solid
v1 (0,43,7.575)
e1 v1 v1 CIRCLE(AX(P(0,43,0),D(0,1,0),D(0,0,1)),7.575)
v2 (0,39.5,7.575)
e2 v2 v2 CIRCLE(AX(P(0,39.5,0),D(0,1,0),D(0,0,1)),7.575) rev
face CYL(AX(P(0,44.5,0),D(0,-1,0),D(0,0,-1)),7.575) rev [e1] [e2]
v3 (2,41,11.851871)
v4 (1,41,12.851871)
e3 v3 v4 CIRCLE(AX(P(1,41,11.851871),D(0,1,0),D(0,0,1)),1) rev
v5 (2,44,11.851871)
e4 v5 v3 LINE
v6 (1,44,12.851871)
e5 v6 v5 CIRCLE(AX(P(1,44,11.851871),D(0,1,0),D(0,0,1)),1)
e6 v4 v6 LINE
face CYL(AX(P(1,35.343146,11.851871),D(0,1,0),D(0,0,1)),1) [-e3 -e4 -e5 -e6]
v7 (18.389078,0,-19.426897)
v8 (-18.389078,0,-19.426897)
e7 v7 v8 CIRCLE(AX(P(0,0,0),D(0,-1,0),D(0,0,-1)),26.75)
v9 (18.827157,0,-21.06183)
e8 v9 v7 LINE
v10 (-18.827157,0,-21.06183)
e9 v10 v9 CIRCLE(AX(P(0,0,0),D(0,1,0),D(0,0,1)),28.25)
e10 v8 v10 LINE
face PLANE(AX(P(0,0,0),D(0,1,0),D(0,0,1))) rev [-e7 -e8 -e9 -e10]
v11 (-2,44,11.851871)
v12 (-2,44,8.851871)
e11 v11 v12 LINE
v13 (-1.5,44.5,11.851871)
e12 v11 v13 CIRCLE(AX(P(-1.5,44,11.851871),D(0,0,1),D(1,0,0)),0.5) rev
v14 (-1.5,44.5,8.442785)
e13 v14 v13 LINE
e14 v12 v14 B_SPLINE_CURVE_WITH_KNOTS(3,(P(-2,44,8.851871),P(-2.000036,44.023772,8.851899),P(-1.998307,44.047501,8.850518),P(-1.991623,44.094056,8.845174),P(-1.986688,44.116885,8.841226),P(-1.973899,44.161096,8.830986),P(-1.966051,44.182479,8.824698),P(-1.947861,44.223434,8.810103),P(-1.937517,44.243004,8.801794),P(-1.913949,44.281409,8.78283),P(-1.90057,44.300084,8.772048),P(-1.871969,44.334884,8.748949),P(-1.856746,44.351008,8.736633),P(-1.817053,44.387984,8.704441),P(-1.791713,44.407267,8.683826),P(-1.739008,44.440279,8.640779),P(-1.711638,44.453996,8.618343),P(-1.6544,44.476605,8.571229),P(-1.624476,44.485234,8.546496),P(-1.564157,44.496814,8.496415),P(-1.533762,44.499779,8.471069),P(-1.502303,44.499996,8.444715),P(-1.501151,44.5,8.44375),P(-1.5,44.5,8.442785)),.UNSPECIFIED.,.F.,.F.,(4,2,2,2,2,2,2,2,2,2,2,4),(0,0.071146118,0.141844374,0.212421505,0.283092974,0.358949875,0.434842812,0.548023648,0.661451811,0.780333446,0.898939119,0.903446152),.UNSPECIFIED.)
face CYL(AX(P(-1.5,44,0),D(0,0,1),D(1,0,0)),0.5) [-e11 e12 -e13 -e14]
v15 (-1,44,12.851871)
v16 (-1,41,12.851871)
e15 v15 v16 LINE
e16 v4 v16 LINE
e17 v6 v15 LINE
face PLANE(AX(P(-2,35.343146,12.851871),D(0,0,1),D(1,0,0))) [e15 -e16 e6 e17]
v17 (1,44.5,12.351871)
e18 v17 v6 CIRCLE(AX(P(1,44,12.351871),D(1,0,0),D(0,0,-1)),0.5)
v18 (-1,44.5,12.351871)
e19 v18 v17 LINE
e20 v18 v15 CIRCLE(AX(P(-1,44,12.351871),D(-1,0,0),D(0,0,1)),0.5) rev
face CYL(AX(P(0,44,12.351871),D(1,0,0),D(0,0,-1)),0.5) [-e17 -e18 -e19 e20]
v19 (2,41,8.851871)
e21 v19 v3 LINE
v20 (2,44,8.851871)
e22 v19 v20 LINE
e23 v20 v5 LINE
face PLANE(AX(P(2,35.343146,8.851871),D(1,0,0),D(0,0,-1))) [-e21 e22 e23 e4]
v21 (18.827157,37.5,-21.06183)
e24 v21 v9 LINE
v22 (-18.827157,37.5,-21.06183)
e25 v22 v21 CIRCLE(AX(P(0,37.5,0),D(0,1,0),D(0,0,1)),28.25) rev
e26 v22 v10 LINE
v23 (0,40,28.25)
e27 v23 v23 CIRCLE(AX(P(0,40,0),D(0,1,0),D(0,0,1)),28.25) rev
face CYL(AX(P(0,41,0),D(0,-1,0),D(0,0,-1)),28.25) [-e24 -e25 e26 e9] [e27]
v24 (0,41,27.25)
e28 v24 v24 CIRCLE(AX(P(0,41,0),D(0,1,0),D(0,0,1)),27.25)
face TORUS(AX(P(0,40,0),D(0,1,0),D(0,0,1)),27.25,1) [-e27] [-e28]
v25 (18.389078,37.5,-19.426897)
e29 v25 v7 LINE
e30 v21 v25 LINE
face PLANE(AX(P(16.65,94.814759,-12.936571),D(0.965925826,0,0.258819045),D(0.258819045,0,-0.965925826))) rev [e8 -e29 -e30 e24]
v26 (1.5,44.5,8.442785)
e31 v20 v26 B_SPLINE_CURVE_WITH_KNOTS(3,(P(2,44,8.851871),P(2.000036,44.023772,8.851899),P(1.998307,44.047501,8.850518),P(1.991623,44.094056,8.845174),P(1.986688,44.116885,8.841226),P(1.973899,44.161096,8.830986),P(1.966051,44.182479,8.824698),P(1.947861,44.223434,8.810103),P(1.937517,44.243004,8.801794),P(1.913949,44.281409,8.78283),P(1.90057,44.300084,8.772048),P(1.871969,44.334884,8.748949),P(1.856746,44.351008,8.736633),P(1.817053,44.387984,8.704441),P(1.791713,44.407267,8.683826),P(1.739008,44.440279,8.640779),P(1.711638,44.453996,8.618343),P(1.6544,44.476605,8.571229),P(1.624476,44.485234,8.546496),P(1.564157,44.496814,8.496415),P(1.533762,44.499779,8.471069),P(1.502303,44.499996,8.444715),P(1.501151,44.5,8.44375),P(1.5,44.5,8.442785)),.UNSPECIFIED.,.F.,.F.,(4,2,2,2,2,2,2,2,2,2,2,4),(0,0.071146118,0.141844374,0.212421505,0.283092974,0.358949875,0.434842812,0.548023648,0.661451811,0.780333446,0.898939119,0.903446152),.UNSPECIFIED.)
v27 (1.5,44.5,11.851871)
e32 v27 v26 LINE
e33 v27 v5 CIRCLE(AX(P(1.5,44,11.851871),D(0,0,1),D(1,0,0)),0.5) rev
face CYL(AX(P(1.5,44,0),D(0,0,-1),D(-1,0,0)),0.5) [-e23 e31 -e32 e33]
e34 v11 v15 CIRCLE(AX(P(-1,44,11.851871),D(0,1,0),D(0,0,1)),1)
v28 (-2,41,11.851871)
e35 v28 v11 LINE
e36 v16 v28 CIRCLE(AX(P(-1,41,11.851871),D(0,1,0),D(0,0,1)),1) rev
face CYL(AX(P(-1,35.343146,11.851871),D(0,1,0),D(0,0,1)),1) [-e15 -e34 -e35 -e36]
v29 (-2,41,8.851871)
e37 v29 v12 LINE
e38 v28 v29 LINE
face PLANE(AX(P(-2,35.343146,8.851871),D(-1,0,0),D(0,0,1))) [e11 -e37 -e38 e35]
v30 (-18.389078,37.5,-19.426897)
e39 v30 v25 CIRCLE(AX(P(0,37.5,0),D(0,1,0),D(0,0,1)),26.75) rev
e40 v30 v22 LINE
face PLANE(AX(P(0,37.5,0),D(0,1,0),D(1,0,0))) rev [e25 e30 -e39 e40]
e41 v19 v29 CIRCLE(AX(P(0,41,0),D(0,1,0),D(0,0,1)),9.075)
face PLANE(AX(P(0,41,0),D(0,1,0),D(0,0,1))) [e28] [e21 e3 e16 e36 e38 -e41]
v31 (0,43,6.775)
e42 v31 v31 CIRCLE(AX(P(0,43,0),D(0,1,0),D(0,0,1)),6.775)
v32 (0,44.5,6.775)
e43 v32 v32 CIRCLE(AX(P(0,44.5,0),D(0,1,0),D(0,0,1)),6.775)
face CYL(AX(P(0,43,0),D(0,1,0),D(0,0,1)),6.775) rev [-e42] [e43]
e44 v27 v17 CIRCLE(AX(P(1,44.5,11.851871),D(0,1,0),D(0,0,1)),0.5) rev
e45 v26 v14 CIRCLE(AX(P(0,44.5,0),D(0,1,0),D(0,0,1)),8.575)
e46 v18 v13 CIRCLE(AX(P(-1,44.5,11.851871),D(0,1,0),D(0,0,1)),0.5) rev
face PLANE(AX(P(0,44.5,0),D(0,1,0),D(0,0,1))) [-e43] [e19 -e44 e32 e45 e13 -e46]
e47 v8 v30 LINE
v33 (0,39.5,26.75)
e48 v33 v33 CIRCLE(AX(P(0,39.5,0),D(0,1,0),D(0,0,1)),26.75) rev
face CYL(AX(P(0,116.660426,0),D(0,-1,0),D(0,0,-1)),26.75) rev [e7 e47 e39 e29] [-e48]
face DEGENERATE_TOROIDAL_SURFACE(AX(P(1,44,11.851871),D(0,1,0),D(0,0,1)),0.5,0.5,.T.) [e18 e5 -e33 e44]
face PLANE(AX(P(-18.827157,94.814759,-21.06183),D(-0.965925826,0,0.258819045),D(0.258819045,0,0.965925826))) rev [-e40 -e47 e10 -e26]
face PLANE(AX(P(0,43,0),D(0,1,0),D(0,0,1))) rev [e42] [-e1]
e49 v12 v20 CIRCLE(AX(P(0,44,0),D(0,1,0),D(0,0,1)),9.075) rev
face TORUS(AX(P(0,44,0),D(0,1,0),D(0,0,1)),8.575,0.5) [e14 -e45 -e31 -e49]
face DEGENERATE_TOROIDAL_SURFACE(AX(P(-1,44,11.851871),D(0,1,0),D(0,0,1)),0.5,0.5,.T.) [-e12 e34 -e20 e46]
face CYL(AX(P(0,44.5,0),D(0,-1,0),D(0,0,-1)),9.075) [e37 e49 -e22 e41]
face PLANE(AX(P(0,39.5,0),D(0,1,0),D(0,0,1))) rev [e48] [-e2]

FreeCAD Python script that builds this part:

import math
import FreeCAD as App
import Part
import Sketcher
Q = App.Units.Quantity


def edges_at(feature, points):
    """Names of the edges that pass closest to the given points."""
    edges = feature.Shape.Edges
    near = lambda p: min(range(len(edges)), key=lambda i: edges[i].distToShape(Part.Vertex(*p))[0])
    return sorted({f"Edge{near(p) + 1}" for p in points})


def add_polygon(sketch, points):
    """Adds a closed chain of lines whose ends are joined by coincident constraints."""
    first, n = sketch.GeometryCount, len(points)
    for a, b in zip(points, points[1:] + points[:1]):
        sketch.addGeometry(Part.LineSegment(App.Vector(*a, 0), App.Vector(*b, 0)), False)
    for i in range(n):
        sketch.addConstraint(Sketcher.Constraint("Coincident", first + i, 2, first + (i + 1) % n, 1))

doc = App.newDocument("Part")
params = doc.addObject("Spreadsheet::Sheet", "Params")
for row, (alias, value) in enumerate([
    ("sketch1_diameter", "56.5 mm"),
    ("pad1_length", "41 mm"),
    ("sketch2_diameter", "53.5 mm"),
    ("pocket1_length", "39.5 mm"),
    ("sketch3_diameter", "18.15 mm"),
    ("sketch3_diameter2", "15.15 mm"),
    ("pad2_length", "3.5 mm"),
    ("sketch4_diameter", "18.15 mm"),
    ("sketch4_diameter2", "13.55 mm"),
    ("pad3_length", "1.5 mm"),
    ("sketch5_diameter", "15.15 mm"),
    ("pocket2_length", "1.5 mm"),
    ("sketch6_width", "4 mm"),
    ("pad4_length", "3.5 mm"),
    ("sketch7_radius", "28.25 mm"),
    ("sketch7_width", "33.3 mm"),
    ("pocket3_length", "37.5 mm"),
    ("fillet_radius", "1 mm"),
    ("fillet2_radius", "0.5 mm"),
], start=1):
    params.set(f"A{row}", alias)
    params.set(f"B{row}", "=" + value)
    params.setAlias(f"B{row}", alias)

body = doc.addObject("PartDesign::Body", "Body")

# Sketch on XZ plane
sketch1 = body.newObject("Sketcher::SketchObject", "Sketch")
sketch1.AttachmentSupport = (doc.getObject("XZ_Plane"), [""])
sketch1.MapMode = "FlatFace"
sketch1.addGeometry(Part.Circle(App.Vector(0, 0, 0), App.Vector(0, 0, 1), 28), False)
sketch1.addConstraint([
    Sketcher.Constraint("Coincident", 0, 3, -1, 1),
    Sketcher.Constraint("Diameter", 0, Q("56.5 mm")),
])
sketch1.setExpression("Constraints[1]", "Params.sketch1_diameter")
pad1 = body.newObject("PartDesign::Pad", "Pad")
pad1.Profile = sketch1
pad1.setExpression("Length", "Params.pad1_length")
pad1.Reversed = True

# Sketch on XZ plane
sketch2 = body.newObject("Sketcher::SketchObject", "Sketch001")
sketch2.AttachmentSupport = (doc.getObject("XZ_Plane"), [""])
sketch2.MapMode = "FlatFace"
sketch2.addGeometry(Part.Circle(App.Vector(0, 0, 0), App.Vector(0, 0, 1), 27), False)
sketch2.addConstraint([
    Sketcher.Constraint("Coincident", 0, 3, -1, 1),
    Sketcher.Constraint("Diameter", 0, Q("53.5 mm")),
])
sketch2.setExpression("Constraints[1]", "Params.sketch2_diameter")
pocket1 = body.newObject("PartDesign::Pocket", "Pocket")
pocket1.Profile = sketch2
pocket1.setExpression("Length", "Params.pocket1_length")

# Sketch on XZ plane
sketch3 = body.newObject("Sketcher::SketchObject", "Sketch002")
sketch3.AttachmentSupport = (doc.getObject("XZ_Plane"), [""])
sketch3.MapMode = "FlatFace"
sketch3.AttachmentOffset = App.Placement(App.Vector(0, 0, -41), App.Rotation())
sketch3.addGeometry([
    Part.Circle(App.Vector(0, 0, 0), App.Vector(0, 0, 1), 9),
    Part.Circle(App.Vector(0, 0, 0), App.Vector(0, 0, 1), 8),
], False)
sketch3.addConstraint([
    Sketcher.Constraint("Coincident", 0, 3, -1, 1),
    Sketcher.Constraint("Coincident", 1, 3, -1, 1),
    Sketcher.Constraint("Diameter", 0, Q("18.15 mm")),
    Sketcher.Constraint("Diameter", 1, Q("15.15 mm")),
])
sketch3.setExpression("Constraints[2]", "Params.sketch3_diameter")
sketch3.setExpression("Constraints[3]", "Params.sketch3_diameter2")
pad2 = body.newObject("PartDesign::Pad", "Pad001")
pad2.Profile = sketch3
pad2.setExpression("Length", "Params.pad2_length")
pad2.Reversed = True

# Sketch on XZ plane
sketch4 = body.newObject("Sketcher::SketchObject", "Sketch003")
sketch4.AttachmentSupport = (doc.getObject("XZ_Plane"), [""])
sketch4.MapMode = "FlatFace"
sketch4.AttachmentOffset = App.Placement(App.Vector(0, 0, -44.5), App.Rotation())
sketch4.addGeometry([
    Part.Circle(App.Vector(0, 0, 0), App.Vector(0, 0, 1), 9),
    Part.Circle(App.Vector(0, 0, 0), App.Vector(0, 0, 1), 7),
], False)
sketch4.addConstraint([
    Sketcher.Constraint("Coincident", 0, 3, -1, 1),
    Sketcher.Constraint("Coincident", 1, 3, -1, 1),
    Sketcher.Constraint("Diameter", 0, Q("18.15 mm")),
    Sketcher.Constraint("Diameter", 1, Q("13.55 mm")),
])
sketch4.setExpression("Constraints[2]", "Params.sketch4_diameter")
sketch4.setExpression("Constraints[3]", "Params.sketch4_diameter2")
pad3 = body.newObject("PartDesign::Pad", "Pad002")
pad3.Profile = sketch4
pad3.setExpression("Length", "Params.pad3_length")

# Sketch on XZ plane
sketch5 = body.newObject("Sketcher::SketchObject", "Sketch004")
sketch5.AttachmentSupport = (doc.getObject("XZ_Plane"), [""])
sketch5.MapMode = "FlatFace"
sketch5.AttachmentOffset = App.Placement(App.Vector(0, 0, -41), App.Rotation())
sketch5.addGeometry(Part.Circle(App.Vector(0, 0, 0), App.Vector(0, 0, 1), 8), False)
sketch5.addConstraint([
    Sketcher.Constraint("Coincident", 0, 3, -1, 1),
    Sketcher.Constraint("Diameter", 0, Q("15.15 mm")),
])
sketch5.setExpression("Constraints[1]", "Params.sketch5_diameter")
pocket2 = body.newObject("PartDesign::Pocket", "Pocket001")
pocket2.Profile = sketch5
pocket2.setExpression("Length", "Params.pocket2_length")
pocket2.Reversed = True

# Sketch on XZ plane
sketch6 = body.newObject("Sketcher::SketchObject", "Sketch005")
sketch6.AttachmentSupport = (doc.getObject("XZ_Plane"), [""])
sketch6.MapMode = "FlatFace"
sketch6.AttachmentOffset = App.Placement(App.Vector(0, 0, -44.5), App.Rotation())
add_polygon(sketch6, [(-2, 8.9), (-2, 12.9), (2, 12.9), (2, 8.9)])  # lines 0-3
sketch6.addConstraint([
    Sketcher.Constraint("Vertical", 0),
    Sketcher.Constraint("Horizontal", 1),
    Sketcher.Constraint("Vertical", 2),
    Sketcher.Constraint("Horizontal", 3),
    Sketcher.Constraint("Equal", 3, 0),
    Sketcher.Constraint("DistanceX", 1, 1, 1, 2, Q("4 mm")),
    Sketcher.Constraint("DistanceX", 0, 2, -1, 1, Q("2 mm")),
    Sketcher.Constraint("DistanceY", -1, 1, 0, 2, Q("12.851871 mm")),
])
sketch6.setExpression("Constraints[9]", "Params.sketch6_width")
pad4 = body.newObject("PartDesign::Pad", "Pad003")
pad4.Profile = sketch6
pad4.setExpression("Length", "Params.pad4_length")

# Sketch on XZ plane
sketch7 = body.newObject("Sketcher::SketchObject", "Sketch006")
sketch7.AttachmentSupport = (doc.getObject("XZ_Plane"), [""])
sketch7.MapMode = "FlatFace"
sketch7.addGeometry([
    Part.LineSegment(App.Vector(-17, -13, 0), App.Vector(-19, -21, 0)),  # 0
    Part.ArcOfCircle(Part.Circle(App.Vector(0, 0, 0), App.Vector(0, 0, 1), 28), math.radians(-132), math.radians(-48)),  # 1
    Part.LineSegment(App.Vector(19, -21, 0), App.Vector(17, -13, 0)),  # 2
    Part.LineSegment(App.Vector(17, -13, 0), App.Vector(17, 13, 0)),  # 3
    Part.LineSegment(App.Vector(17, 13, 0), App.Vector(-17, 13, 0)),  # 4
    Part.LineSegment(App.Vector(-17, 13, 0), App.Vector(-17, -13, 0)),  # 5
], False)
sketch7.addConstraint([
    Sketcher.Constraint("Coincident", 0, 2, 1, 1),
    Sketcher.Constraint("Coincident", 1, 2, 2, 1),
    Sketcher.Constraint("Coincident", 2, 2, 3, 1),
    Sketcher.Constraint("Coincident", 3, 2, 4, 1),
    Sketcher.Constraint("Coincident", 4, 2, 5, 1),
    Sketcher.Constraint("Coincident", 5, 2, 0, 1),
    Sketcher.Constraint("Vertical", 3),
    Sketcher.Constraint("Horizontal", 4),
    Sketcher.Constraint("Vertical", 5),
    Sketcher.Constraint("Coincident", 1, 3, -1, 1),
    Sketcher.Constraint("Symmetric", 2, 2, 5, 2, -2),
    Sketcher.Constraint("Horizontal", 0, 2, 1, 2),
    Sketcher.Constraint("Angle", 0, Q("-105 deg")),
    Sketcher.Constraint("Radius", 1, Q("28.25 mm")),
    Sketcher.Constraint("DistanceX", 4, 2, 4, 1, Q("33.3 mm")),
    Sketcher.Constraint("DistanceY", -1, 1, 3, 2, Q("12.95 mm")),
    Sketcher.Constraint("DistanceY", 3, 1, 3, 2, Q("25.886571 mm")),
])
sketch7.setExpression("Constraints[13]", "Params.sketch7_radius")
sketch7.setExpression("Constraints[14]", "Params.sketch7_width")
pocket3 = body.newObject("PartDesign::Pocket", "Pocket002")
pocket3.Profile = sketch7
pocket3.setExpression("Length", "Params.pocket3_length")
doc.recompute()

fillet = body.newObject("PartDesign::Fillet", "Fillet")
fillet.Base = (pocket3, edges_at(pocket3, [(-2, 42.75, 12.852), (2, 42.75, 12.852), (-28.25, 41, 0)]))
fillet.setExpression("Radius", "Params.fillet_radius")
doc.recompute()

fillet2 = body.newObject("PartDesign::Fillet", "Fillet001")
fillet2.Base = (fillet, edges_at(fillet, [
    (0, 44.5, -9.075),
    (-2, 44.5, 10.352),
    (0, 44.5, 12.852),
    (2, 44.5, 10.352),
]))
fillet2.setExpression("Radius", "Params.fillet2_radius")

doc.recompute()
